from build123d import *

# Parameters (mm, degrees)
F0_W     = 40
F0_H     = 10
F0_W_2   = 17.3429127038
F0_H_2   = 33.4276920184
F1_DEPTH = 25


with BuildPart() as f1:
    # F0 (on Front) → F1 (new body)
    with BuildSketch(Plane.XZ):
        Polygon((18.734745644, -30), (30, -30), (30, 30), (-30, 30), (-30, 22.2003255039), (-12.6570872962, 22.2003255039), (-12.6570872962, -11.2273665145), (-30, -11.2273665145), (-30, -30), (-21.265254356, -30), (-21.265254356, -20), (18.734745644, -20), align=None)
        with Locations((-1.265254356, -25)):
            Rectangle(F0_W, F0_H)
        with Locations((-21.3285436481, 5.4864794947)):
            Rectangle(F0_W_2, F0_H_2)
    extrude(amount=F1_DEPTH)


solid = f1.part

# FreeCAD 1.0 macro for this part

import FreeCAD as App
import Part
import Sketcher
from FreeCAD import Vector


def add_polygon(sketch, points):
    """Adds a closed chain of lines whose ends are joined by coincident constraints."""
    first, n = sketch.GeometryCount, len(points)
    for a, b in zip(points, points[1:] + points[:1]):
        sketch.addGeometry(Part.LineSegment(App.Vector(*a, 0), App.Vector(*b, 0)), False)
    for i in range(n):
        sketch.addConstraint(Sketcher.Constraint("Coincident", first + i, 2, first + (i + 1) % n, 1))

doc = App.newDocument("Part")
body = doc.addObject("PartDesign::Body", "Body")

# Sketch on XZ plane
sketch1 = doc.addObject("Sketcher::SketchObject", "Sketch")
body.addObject(sketch1)
sketch1.AttachmentSupport = (doc.XZ_Plane, [""])
sketch1.MapMode = "FlatFace"
add_polygon(sketch1, [(30, -30), (30, 30), (-30, 30), (-30, -30)])  # lines 0-3
sketch1.addConstraint([
    Sketcher.Constraint("Vertical", 0),
    Sketcher.Constraint("Horizontal", 1),
    Sketcher.Constraint("Vertical", 2),
    Sketcher.Constraint("Horizontal", 3),
    Sketcher.Constraint("Symmetric", 0, 2, 2, 2, -1, 1),
    Sketcher.Constraint("Equal", 3, 0),
    Sketcher.Constraint("DistanceX", 1, 2, 1, 1, 60.0),
])
pad1 = doc.addObject("PartDesign::Pad", "Pad")
body.addObject(pad1)
pad1.Profile = sketch1
pad1.Length = 25

doc.recompute()
